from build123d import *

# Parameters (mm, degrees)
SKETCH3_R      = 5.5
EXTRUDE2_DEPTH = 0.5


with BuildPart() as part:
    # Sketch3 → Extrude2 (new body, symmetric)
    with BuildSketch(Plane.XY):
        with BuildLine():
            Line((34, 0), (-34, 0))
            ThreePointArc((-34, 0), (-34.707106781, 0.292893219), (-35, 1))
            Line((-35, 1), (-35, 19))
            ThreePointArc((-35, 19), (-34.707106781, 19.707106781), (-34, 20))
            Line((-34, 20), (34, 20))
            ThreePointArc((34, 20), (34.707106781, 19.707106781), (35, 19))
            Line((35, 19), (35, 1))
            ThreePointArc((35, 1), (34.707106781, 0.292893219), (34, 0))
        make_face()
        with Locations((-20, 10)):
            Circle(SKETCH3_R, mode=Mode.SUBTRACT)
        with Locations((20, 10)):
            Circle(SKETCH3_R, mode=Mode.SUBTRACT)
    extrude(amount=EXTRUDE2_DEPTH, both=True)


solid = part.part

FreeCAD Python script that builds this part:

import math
import FreeCAD as App
import Part
import Sketcher

V = App.Vector
Q = App.Units.Quantity

doc = App.newDocument("Part")
body = doc.addObject("PartDesign::Body", "Body")

sketch1 = body.newObject("Sketcher::SketchObject", "Sketch")
sketch1.AttachmentSupport = (doc.getObject("XY_Plane"), [""])
sketch1.MapMode = "FlatFace"
sketch1.addGeometry(Part.LineSegment(V(-34, 0, 0), V(34, 0, 0)), False)
sketch1.addGeometry(Part.ArcOfCircle(Part.Circle(V(34, 1, 0), V(0, 0, 1), 1), math.radians(-90), math.radians(0)), False)
sketch1.addGeometry(Part.LineSegment(V(35, 1, 0), V(35, 19, 0)), False)
sketch1.addGeometry(Part.ArcOfCircle(Part.Circle(V(34, 19, 0), V(0, 0, 1), 1), math.radians(0), math.radians(90)), False)
sketch1.addGeometry(Part.LineSegment(V(34, 20, 0), V(-34, 20, 0)), False)
sketch1.addGeometry(Part.ArcOfCircle(Part.Circle(V(-34, 19, 0), V(0, 0, 1), 1), math.radians(90), math.radians(180)), False)
sketch1.addGeometry(Part.LineSegment(V(-35, 19, 0), V(-35, 1, 0)), False)
sketch1.addGeometry(Part.ArcOfCircle(Part.Circle(V(-34, 1, 0), V(0, 0, 1), 1), math.radians(-180), math.radians(-90)), False)
sketch1.addGeometry(Part.Circle(V(20, 10, 0), V(0, 0, 1), 5.5), False)
sketch1.addGeometry(Part.Circle(V(-20, 10, 0), V(0, 0, 1), 5.5), False)
sketch1.addConstraint(Sketcher.Constraint("Tangent", 0, 2, 1, 1))
sketch1.addConstraint(Sketcher.Constraint("Tangent", 1, 2, 2, 1))
sketch1.addConstraint(Sketcher.Constraint("Tangent", 2, 2, 3, 1))
sketch1.addConstraint(Sketcher.Constraint("Tangent", 3, 2, 4, 1))
sketch1.addConstraint(Sketcher.Constraint("Tangent", 4, 2, 5, 1))
sketch1.addConstraint(Sketcher.Constraint("Tangent", 5, 2, 6, 1))
sketch1.addConstraint(Sketcher.Constraint("Tangent", 6, 2, 7, 1))
sketch1.addConstraint(Sketcher.Constraint("Tangent", 7, 2, 0, 1))
sketch1.addConstraint(Sketcher.Constraint("Horizontal", 0))
sketch1.addConstraint(Sketcher.Constraint("Vertical", 2))
sketch1.addConstraint(Sketcher.Constraint("Horizontal", 4))
sketch1.addConstraint(Sketcher.Constraint("Vertical", 6))
sketch1.addConstraint(Sketcher.Constraint("Equal", 1, 3))
sketch1.addConstraint(Sketcher.Constraint("Equal", 3, 5))
sketch1.addConstraint(Sketcher.Constraint("Equal", 5, 7))
sketch1.addConstraint(Sketcher.Constraint("Equal", 8, 9))
sketch1.addConstraint(Sketcher.Constraint("Symmetric", 0, 2, 7, 2, -1, 1))
sketch1.addConstraint(Sketcher.Constraint("Symmetric", 8, 3, 9, 3, -2))
sketch1.addConstraint(Sketcher.Constraint("Diameter", 8, Q("11 mm")))
sketch1.addConstraint(Sketcher.Constraint("Radius", 1, Q("1 mm")))
sketch1.addConstraint(Sketcher.Constraint("DistanceX", 0, 1, 0, 2, Q("68 mm")))
sketch1.addConstraint(Sketcher.Constraint("DistanceY", 2, 1, 2, 2, Q("18 mm")))
sketch1.addConstraint(Sketcher.Constraint("DistanceX", -1, 1, 8, 3, Q("20 mm")))
sketch1.addConstraint(Sketcher.Constraint("DistanceY", -1, 1, 8, 3, Q("10 mm")))
pad1 = body.newObject("PartDesign::Pad", "Pad")
pad1.Profile = sketch1
pad1.Length = 1
pad1.Midplane = True

doc.recompute()
